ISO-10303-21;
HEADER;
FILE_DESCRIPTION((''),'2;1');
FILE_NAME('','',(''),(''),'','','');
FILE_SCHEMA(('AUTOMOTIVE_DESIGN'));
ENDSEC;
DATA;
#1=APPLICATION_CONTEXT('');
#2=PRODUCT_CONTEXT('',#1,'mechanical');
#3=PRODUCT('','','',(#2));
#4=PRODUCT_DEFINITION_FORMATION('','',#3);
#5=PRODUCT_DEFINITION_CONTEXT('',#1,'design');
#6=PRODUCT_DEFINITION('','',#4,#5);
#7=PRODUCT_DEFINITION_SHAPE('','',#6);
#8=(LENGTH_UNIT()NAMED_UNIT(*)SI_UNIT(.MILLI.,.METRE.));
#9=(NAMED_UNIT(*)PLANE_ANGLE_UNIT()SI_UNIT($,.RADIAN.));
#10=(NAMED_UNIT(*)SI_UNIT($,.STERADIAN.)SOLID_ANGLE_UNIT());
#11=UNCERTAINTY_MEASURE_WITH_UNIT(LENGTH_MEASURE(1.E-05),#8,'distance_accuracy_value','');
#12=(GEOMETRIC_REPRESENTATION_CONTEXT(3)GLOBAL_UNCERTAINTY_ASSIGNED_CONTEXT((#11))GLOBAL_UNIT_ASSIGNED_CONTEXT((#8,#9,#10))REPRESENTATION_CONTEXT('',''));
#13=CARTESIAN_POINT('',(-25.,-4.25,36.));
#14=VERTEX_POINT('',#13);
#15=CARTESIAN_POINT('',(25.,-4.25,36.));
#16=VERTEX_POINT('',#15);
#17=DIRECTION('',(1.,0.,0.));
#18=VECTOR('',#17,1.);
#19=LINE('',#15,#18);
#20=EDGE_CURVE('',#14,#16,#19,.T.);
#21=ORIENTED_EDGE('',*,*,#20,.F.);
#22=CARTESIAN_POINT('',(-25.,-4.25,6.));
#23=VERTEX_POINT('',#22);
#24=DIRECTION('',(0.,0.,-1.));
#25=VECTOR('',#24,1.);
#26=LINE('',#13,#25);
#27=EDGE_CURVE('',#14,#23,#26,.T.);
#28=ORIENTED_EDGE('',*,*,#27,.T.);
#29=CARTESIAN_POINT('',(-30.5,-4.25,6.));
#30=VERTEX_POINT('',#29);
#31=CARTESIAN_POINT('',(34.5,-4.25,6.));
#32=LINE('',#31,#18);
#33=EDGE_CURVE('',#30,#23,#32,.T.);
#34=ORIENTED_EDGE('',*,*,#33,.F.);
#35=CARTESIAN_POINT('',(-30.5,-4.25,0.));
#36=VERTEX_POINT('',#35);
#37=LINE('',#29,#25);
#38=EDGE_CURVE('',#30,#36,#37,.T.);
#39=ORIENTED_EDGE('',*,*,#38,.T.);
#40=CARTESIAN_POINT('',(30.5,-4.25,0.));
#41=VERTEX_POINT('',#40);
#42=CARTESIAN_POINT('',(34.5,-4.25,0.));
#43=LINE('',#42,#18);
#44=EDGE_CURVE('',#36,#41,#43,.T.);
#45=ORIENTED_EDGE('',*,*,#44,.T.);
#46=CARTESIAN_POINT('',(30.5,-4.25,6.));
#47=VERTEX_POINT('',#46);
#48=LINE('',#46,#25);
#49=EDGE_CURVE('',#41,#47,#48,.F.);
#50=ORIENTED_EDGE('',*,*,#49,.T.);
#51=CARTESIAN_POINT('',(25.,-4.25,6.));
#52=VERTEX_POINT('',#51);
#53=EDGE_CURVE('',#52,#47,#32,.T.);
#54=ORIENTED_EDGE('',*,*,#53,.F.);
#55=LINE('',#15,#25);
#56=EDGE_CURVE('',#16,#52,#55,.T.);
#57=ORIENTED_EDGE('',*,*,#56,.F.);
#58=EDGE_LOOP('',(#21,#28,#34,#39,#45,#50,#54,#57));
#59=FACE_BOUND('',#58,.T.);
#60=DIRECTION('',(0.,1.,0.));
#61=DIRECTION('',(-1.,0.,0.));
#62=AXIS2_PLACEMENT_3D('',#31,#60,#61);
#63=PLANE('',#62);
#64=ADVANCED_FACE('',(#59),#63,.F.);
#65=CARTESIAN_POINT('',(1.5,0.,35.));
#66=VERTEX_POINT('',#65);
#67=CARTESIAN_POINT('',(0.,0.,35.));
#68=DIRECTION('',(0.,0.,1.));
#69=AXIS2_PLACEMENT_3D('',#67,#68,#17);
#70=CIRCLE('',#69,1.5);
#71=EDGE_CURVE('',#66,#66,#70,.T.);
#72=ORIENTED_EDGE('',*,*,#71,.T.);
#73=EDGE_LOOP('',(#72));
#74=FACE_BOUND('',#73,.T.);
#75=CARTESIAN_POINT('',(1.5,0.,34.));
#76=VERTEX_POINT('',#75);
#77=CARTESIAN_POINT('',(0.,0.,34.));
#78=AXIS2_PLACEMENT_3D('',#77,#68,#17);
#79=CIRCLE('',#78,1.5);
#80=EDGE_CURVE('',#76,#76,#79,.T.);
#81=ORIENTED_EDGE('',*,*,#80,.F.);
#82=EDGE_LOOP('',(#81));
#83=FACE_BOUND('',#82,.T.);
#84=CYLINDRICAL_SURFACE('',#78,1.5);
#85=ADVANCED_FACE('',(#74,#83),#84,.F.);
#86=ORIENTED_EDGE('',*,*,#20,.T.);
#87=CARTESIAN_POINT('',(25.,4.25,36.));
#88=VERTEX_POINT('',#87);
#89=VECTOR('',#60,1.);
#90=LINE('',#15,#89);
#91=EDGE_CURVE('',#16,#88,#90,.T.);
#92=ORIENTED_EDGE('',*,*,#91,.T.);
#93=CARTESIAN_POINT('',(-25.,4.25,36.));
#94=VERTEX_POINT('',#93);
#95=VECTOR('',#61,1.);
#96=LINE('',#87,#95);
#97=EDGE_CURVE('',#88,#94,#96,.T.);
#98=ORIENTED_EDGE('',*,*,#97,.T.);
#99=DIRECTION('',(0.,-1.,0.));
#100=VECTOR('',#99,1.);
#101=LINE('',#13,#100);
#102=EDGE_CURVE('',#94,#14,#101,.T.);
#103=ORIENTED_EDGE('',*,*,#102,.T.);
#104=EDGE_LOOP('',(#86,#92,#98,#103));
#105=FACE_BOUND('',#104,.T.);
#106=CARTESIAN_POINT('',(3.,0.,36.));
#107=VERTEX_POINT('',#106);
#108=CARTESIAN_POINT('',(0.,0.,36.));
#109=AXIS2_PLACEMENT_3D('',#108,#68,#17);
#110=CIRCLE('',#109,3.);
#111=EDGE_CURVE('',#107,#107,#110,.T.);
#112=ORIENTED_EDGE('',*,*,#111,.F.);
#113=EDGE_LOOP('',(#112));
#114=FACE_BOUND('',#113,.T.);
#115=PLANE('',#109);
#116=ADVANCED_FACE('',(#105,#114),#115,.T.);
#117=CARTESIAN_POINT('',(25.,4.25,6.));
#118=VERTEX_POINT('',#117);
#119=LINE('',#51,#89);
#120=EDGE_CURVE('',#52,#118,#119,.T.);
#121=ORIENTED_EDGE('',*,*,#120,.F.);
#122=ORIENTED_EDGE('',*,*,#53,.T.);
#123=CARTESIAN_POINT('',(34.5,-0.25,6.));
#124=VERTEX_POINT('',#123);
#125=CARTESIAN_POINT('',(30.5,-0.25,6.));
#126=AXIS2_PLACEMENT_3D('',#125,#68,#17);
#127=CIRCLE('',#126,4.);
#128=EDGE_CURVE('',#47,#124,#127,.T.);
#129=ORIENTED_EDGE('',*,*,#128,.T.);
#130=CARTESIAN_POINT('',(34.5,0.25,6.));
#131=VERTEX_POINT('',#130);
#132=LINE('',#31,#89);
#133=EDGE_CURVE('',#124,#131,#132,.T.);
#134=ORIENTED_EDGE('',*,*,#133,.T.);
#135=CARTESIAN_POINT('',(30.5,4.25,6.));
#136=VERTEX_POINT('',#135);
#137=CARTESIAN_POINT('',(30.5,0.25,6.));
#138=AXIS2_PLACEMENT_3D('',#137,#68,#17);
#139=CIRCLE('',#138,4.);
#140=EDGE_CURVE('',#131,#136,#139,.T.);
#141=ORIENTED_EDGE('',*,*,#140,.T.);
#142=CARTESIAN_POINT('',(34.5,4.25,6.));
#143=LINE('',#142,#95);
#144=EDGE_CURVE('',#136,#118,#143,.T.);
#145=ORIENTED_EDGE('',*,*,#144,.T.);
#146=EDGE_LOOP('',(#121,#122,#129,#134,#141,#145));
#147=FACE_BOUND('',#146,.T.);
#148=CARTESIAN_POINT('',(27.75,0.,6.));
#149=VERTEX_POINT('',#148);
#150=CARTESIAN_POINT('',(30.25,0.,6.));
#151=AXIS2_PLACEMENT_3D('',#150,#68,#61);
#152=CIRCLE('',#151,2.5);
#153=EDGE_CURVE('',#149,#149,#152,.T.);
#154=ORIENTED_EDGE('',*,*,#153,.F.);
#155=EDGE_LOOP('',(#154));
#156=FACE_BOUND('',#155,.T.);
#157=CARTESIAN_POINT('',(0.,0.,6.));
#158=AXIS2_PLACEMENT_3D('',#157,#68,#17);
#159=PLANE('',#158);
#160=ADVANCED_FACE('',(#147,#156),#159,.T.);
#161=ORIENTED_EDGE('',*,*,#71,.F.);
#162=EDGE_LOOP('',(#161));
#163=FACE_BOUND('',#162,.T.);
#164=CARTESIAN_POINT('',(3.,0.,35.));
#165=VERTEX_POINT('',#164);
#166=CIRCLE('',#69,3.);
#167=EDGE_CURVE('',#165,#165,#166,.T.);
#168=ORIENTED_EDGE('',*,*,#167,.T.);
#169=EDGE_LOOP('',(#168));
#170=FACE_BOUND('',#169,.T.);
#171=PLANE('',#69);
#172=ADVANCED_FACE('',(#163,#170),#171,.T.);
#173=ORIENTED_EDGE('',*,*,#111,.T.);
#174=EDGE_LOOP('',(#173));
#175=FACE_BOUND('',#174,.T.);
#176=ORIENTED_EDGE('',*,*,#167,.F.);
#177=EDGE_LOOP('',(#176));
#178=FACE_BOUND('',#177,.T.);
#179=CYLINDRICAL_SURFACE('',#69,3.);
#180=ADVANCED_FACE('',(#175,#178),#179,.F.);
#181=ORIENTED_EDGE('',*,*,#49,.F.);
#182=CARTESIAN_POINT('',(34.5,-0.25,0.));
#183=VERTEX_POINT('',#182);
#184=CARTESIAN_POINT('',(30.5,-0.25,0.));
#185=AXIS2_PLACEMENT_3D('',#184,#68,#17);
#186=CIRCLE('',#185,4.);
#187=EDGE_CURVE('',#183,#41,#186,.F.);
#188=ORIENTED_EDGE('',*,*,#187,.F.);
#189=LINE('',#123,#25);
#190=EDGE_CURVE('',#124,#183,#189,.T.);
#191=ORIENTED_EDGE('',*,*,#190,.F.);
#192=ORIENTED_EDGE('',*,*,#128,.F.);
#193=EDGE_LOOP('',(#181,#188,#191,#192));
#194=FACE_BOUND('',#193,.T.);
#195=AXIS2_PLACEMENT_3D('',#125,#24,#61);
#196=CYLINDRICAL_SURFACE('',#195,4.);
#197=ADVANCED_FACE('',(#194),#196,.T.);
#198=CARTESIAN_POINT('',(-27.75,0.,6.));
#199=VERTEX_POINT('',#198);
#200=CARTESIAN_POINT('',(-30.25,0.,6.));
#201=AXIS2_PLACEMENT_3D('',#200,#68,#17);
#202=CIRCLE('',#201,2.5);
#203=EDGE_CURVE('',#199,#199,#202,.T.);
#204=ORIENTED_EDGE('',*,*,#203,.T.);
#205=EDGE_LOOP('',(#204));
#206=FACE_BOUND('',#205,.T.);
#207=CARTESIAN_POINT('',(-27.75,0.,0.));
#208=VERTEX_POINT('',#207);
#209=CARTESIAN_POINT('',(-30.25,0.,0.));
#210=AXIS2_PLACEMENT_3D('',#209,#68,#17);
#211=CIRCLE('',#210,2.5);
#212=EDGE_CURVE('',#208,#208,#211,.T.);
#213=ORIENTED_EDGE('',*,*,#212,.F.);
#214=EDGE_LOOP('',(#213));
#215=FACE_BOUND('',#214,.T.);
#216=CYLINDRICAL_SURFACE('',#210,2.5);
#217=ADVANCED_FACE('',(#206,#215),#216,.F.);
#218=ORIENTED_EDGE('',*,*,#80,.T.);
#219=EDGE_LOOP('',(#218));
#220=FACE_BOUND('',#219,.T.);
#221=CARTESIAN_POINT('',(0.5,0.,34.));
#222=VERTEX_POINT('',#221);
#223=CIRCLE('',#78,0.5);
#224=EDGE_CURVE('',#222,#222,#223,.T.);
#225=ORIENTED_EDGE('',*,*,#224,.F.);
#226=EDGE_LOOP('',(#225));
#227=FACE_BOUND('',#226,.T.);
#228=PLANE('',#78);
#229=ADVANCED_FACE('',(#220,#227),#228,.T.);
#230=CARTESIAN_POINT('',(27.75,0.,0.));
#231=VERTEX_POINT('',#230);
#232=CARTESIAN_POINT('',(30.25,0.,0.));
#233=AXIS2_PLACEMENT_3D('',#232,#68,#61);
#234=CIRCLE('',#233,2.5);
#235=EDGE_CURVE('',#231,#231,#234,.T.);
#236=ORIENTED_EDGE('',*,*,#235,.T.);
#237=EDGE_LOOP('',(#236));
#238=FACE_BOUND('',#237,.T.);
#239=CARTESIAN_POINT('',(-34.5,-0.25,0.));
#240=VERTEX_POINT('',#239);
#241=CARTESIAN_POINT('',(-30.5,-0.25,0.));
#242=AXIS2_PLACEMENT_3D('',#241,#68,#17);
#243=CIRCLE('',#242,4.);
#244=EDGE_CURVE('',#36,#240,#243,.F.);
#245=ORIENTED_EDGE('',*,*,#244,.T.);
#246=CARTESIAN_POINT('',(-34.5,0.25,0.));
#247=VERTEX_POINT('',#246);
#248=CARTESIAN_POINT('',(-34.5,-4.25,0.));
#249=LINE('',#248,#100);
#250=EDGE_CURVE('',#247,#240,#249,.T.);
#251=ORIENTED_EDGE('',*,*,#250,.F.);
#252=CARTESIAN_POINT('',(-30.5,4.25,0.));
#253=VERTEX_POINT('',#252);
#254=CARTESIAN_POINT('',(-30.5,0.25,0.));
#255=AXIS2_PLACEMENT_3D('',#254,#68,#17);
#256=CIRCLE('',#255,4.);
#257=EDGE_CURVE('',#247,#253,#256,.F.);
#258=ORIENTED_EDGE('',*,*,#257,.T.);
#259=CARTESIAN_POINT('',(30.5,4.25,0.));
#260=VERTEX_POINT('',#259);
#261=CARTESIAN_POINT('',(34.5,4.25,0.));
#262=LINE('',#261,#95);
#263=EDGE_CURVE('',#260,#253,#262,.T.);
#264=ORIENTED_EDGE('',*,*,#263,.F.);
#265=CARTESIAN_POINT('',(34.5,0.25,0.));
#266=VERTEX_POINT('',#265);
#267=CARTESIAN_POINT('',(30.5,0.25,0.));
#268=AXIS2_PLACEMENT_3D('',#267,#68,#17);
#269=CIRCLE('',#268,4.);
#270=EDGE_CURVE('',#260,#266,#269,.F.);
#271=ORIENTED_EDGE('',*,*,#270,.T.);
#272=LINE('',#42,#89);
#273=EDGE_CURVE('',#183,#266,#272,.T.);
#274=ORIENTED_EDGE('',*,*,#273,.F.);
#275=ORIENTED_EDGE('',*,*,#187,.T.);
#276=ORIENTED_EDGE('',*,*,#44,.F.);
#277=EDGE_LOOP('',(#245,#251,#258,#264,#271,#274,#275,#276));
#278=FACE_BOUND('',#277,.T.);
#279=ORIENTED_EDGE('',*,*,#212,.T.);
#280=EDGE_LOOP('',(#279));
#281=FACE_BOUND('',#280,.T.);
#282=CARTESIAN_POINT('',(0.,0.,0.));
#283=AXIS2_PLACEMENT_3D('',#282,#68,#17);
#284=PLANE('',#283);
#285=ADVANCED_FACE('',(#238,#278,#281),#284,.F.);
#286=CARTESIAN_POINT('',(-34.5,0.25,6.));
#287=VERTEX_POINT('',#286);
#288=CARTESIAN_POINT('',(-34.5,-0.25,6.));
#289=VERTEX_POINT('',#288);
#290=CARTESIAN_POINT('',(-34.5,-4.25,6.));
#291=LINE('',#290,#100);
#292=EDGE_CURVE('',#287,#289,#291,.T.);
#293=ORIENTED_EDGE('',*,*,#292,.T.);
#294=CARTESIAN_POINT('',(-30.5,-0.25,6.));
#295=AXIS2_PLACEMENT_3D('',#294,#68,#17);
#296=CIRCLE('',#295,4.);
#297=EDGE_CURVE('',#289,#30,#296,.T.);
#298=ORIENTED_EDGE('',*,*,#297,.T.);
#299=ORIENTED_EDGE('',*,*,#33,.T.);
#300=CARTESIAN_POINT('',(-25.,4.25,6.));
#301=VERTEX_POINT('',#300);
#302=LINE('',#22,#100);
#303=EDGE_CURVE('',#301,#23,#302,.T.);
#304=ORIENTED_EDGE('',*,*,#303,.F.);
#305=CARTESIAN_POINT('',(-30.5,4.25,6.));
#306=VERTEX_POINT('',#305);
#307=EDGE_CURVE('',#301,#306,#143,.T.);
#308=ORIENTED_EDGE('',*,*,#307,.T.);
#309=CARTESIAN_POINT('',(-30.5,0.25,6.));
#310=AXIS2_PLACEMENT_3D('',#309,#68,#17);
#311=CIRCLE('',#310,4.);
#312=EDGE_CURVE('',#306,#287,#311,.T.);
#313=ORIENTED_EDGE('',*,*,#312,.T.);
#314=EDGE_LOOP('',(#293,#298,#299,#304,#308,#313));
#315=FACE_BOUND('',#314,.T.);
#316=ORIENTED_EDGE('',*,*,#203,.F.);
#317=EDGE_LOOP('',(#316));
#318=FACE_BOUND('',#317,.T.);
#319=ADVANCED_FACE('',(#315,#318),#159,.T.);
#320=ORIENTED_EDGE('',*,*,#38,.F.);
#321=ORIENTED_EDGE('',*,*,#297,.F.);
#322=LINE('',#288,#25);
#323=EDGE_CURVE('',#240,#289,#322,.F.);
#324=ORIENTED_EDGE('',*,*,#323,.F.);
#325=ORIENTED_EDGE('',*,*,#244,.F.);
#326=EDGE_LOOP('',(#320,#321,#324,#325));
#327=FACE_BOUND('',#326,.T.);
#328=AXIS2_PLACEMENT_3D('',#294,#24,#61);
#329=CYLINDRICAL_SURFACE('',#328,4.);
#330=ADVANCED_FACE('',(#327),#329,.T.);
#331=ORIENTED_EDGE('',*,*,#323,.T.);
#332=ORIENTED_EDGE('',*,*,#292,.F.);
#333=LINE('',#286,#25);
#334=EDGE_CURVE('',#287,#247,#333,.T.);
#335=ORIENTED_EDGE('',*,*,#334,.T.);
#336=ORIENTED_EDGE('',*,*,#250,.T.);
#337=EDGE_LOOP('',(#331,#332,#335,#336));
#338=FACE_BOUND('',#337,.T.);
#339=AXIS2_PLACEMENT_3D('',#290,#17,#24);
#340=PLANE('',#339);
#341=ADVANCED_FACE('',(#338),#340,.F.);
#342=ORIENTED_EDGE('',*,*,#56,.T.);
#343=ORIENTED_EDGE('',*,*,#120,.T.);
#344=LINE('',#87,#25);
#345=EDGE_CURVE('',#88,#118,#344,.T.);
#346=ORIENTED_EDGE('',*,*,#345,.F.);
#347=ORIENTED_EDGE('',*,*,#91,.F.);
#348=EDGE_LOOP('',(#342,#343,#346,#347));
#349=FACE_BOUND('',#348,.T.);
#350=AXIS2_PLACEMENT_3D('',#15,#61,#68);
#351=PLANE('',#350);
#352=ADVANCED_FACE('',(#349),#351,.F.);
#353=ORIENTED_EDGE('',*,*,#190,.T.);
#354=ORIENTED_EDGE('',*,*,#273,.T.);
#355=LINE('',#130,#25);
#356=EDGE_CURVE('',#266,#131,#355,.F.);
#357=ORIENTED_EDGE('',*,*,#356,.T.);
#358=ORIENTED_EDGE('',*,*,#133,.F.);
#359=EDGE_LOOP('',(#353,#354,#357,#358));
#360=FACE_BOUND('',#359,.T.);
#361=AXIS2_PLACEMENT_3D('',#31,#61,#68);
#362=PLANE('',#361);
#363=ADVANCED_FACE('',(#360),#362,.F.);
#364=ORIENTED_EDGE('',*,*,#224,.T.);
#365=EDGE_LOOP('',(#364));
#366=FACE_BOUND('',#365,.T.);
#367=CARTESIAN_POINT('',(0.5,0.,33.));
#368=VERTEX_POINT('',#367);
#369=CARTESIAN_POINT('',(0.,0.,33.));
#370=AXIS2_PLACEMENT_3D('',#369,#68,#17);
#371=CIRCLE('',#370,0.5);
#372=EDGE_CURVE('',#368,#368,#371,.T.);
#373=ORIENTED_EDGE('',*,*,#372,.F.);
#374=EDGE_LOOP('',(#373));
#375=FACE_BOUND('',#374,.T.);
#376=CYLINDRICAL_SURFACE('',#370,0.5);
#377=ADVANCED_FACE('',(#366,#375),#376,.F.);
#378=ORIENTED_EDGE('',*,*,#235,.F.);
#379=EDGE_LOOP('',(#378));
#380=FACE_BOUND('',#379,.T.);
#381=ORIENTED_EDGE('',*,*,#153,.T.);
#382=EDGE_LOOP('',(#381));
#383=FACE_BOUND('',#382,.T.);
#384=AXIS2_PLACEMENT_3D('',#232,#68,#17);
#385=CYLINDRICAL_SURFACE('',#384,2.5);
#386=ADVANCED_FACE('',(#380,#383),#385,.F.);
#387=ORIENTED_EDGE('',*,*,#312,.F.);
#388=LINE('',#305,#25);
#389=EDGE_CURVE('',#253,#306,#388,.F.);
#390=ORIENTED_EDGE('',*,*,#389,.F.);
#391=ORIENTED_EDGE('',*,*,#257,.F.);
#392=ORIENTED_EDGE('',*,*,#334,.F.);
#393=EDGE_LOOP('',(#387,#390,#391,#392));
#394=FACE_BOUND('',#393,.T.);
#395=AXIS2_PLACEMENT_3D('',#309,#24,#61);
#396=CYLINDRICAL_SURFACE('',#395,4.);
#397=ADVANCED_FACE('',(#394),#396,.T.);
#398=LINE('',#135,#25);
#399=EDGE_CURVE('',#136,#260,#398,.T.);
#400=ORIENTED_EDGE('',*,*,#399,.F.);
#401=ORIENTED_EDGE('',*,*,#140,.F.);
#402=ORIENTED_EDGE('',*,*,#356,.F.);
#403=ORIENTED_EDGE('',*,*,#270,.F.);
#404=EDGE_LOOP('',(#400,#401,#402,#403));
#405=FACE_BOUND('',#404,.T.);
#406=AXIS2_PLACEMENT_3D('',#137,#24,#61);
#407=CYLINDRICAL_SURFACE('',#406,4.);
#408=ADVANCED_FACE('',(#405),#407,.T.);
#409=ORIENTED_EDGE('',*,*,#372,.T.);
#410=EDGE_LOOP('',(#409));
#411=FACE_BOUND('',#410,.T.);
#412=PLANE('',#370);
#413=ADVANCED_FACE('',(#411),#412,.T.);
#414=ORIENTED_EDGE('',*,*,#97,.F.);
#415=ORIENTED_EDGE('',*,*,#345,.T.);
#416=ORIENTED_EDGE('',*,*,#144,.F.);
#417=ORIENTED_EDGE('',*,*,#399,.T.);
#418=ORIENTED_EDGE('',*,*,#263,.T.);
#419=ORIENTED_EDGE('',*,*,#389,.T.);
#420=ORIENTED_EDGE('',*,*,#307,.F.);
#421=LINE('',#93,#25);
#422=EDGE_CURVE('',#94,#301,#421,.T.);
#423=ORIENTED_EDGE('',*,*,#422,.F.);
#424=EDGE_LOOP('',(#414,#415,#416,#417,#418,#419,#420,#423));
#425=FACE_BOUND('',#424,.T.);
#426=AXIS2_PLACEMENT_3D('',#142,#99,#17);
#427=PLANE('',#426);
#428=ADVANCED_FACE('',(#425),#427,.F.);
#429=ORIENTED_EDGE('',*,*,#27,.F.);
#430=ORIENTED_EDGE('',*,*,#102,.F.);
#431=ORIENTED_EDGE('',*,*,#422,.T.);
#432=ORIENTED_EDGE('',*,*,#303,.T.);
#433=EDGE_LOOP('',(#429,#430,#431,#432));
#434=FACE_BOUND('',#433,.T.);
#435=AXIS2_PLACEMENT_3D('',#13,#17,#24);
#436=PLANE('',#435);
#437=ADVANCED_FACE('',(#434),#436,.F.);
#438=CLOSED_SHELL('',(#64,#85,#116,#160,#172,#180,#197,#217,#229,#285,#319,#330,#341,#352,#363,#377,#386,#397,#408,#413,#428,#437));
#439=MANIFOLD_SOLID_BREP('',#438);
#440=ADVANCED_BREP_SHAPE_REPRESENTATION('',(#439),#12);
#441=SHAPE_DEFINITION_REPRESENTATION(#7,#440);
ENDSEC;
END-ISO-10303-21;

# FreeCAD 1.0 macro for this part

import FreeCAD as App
import Part
import Sketcher

V = App.Vector
Q = App.Units.Quantity


def edges_at(feature, points):
    """Names of the edges that pass closest to the given points."""
    edges = feature.Shape.Edges
    near = lambda p: min(range(len(edges)), key=lambda i: edges[i].distToShape(Part.Vertex(*p))[0])
    return sorted({f"Edge{near(p) + 1}" for p in points})


def add_polygon(sketch, points):
    """Adds a closed chain of lines whose ends are joined by coincident constraints."""
    first, n = sketch.GeometryCount, len(points)
    for a, b in zip(points, points[1:] + points[:1]):
        sketch.addGeometry(Part.LineSegment(App.Vector(*a, 0), App.Vector(*b, 0)), False)
    for i in range(n):
        sketch.addConstraint(Sketcher.Constraint("Coincident", first + i, 2, first + (i + 1) % n, 1))

doc = App.newDocument("Part")
body = doc.addObject("PartDesign::Body", "Body")

# Sketch on XY plane
sketch1 = doc.addObject("Sketcher::SketchObject", "Sketch")
body.addObject(sketch1)
sketch1.AttachmentSupport = (doc.XY_Plane, [""])
sketch1.MapMode = "FlatFace"
add_polygon(sketch1, [(-34, 4), (-34, -4), (34, -4), (34, 4)])  # lines 0-3
sketch1.addConstraint([
    Sketcher.Constraint("Vertical", 0),
    Sketcher.Constraint("Horizontal", 1),
    Sketcher.Constraint("Vertical", 2),
    Sketcher.Constraint("Horizontal", 3),
    Sketcher.Constraint("Symmetric", 0, 2, 2, 2, -1, 1),
    Sketcher.Constraint("DistanceX", 1, 1, 1, 2, Q("69 mm")),
    Sketcher.Constraint("DistanceY", 0, 2, 0, 1, Q("8.5 mm")),
])
pad1 = doc.addObject("PartDesign::Pad", "Pad")
body.addObject(pad1)
pad1.Profile = sketch1
pad1.Length = 6

# Sketch on XY plane
sketch2 = doc.addObject("Sketcher::SketchObject", "Sketch001")
body.addObject(sketch2)
sketch2.AttachmentSupport = (doc.XY_Plane, [""])
sketch2.MapMode = "FlatFace"
sketch2.AttachmentOffset = App.Placement(V(0, 0, 6), App.Rotation())
add_polygon(sketch2, [(-25, 4), (-25, -4), (25, -4), (25, 4)])  # lines 0-3
sketch2.addConstraint([
    Sketcher.Constraint("Vertical", 0),
    Sketcher.Constraint("Horizontal", 1),
    Sketcher.Constraint("Vertical", 2),
    Sketcher.Constraint("Horizontal", 3),
    Sketcher.Constraint("Symmetric", 0, 2, 2, 2, -1, 1),
    Sketcher.Constraint("DistanceX", 1, 1, 1, 2, Q("50 mm")),
    Sketcher.Constraint("DistanceY", 0, 2, 0, 1, Q("8.5 mm")),
])
pad2 = doc.addObject("PartDesign::Pad", "Pad001")
body.addObject(pad2)
pad2.Profile = sketch2
pad2.Length = 30

# Sketch on XY plane
sketch3 = doc.addObject("Sketcher::SketchObject", "Sketch002")
body.addObject(sketch3)
sketch3.AttachmentSupport = (doc.XY_Plane, [""])
sketch3.MapMode = "FlatFace"
sketch3.AttachmentOffset = App.Placement(V(0, 0, 6), App.Rotation())
sketch3.addGeometry([
    Part.Circle(V(-30.2, 0, 0), V(0, 0, 1), 2.5),
    Part.Circle(V(30.2, 0, 0), V(0, 0, 1), 2.5),
], False)
sketch3.addConstraint([
    Sketcher.Constraint("Equal", 0, 1),
    Sketcher.Constraint("Symmetric", 0, 3, 1, 3, -1, 1),
    Sketcher.Constraint("PointOnObject", 0, 3, -1),
    Sketcher.Constraint("Diameter", 0, Q("5 mm")),
    Sketcher.Constraint("DistanceX", 0, 3, 1, 3, Q("60.5 mm")),
])
pocket1 = doc.addObject("PartDesign::Pocket", "Pocket")
body.addObject(pocket1)
pocket1.Profile = sketch3
pocket1.Type = "ThroughAll"
doc.recompute()

fillet = doc.addObject("PartDesign::Fillet", "Fillet")
body.addObject(fillet)
fillet.Base = (pocket1, edges_at(pocket1, [
    (-34.5, 4.25, 3),
    (34.5, 4.25, 3),
    (34.5, -4.25, 3),
    (-34.5, -4.25, 3),
]))
fillet.Radius = 4

# Sketch on XY plane
sketch4 = doc.addObject("Sketcher::SketchObject", "Sketch003")
body.addObject(sketch4)
sketch4.AttachmentSupport = (doc.XY_Plane, [""])
sketch4.MapMode = "FlatFace"
sketch4.AttachmentOffset = App.Placement(V(0, 0, 36), App.Rotation())
sketch4.addGeometry(Part.Circle(V(0, 0, 0), V(0, 0, 1), 3), False)
sketch4.addConstraint([
    Sketcher.Constraint("Coincident", 0, 3, -1, 1),
    Sketcher.Constraint("Diameter", 0, Q("6 mm")),
])
pocket2 = doc.addObject("PartDesign::Pocket", "Pocket001")
body.addObject(pocket2)
pocket2.Profile = sketch4
pocket2.Length = 1

# Sketch on XY plane
sketch5 = doc.addObject("Sketcher::SketchObject", "Sketch004")
body.addObject(sketch5)
sketch5.AttachmentSupport = (doc.XY_Plane, [""])
sketch5.MapMode = "FlatFace"
sketch5.AttachmentOffset = App.Placement(V(0, 0, 35), App.Rotation())
sketch5.addGeometry(Part.Circle(V(0, 0, 0), V(0, 0, 1), 1.5), False)
sketch5.addConstraint([
    Sketcher.Constraint("Coincident", 0, 3, -1, 1),
    Sketcher.Constraint("Diameter", 0, Q("3 mm")),
])
pocket3 = doc.addObject("PartDesign::Pocket", "Pocket002")
body.addObject(pocket3)
pocket3.Profile = sketch5
pocket3.Length = 1

# Sketch on XY plane
sketch6 = doc.addObject("Sketcher::SketchObject", "Sketch005")
body.addObject(sketch6)
sketch6.AttachmentSupport = (doc.XY_Plane, [""])
sketch6.MapMode = "FlatFace"
sketch6.AttachmentOffset = App.Placement(V(0, 0, 34), App.Rotation())
sketch6.addGeometry(Part.Circle(V(0, 0, 0), V(0, 0, 1), 0.5), False)
sketch6.addConstraint([
    Sketcher.Constraint("Coincident", 0, 3, -1, 1),
    Sketcher.Constraint("Diameter", 0, Q("1 mm")),
])
pocket4 = doc.addObject("PartDesign::Pocket", "Pocket003")
body.addObject(pocket4)
pocket4.Profile = sketch6
pocket4.Length = 1

doc.recompute()
